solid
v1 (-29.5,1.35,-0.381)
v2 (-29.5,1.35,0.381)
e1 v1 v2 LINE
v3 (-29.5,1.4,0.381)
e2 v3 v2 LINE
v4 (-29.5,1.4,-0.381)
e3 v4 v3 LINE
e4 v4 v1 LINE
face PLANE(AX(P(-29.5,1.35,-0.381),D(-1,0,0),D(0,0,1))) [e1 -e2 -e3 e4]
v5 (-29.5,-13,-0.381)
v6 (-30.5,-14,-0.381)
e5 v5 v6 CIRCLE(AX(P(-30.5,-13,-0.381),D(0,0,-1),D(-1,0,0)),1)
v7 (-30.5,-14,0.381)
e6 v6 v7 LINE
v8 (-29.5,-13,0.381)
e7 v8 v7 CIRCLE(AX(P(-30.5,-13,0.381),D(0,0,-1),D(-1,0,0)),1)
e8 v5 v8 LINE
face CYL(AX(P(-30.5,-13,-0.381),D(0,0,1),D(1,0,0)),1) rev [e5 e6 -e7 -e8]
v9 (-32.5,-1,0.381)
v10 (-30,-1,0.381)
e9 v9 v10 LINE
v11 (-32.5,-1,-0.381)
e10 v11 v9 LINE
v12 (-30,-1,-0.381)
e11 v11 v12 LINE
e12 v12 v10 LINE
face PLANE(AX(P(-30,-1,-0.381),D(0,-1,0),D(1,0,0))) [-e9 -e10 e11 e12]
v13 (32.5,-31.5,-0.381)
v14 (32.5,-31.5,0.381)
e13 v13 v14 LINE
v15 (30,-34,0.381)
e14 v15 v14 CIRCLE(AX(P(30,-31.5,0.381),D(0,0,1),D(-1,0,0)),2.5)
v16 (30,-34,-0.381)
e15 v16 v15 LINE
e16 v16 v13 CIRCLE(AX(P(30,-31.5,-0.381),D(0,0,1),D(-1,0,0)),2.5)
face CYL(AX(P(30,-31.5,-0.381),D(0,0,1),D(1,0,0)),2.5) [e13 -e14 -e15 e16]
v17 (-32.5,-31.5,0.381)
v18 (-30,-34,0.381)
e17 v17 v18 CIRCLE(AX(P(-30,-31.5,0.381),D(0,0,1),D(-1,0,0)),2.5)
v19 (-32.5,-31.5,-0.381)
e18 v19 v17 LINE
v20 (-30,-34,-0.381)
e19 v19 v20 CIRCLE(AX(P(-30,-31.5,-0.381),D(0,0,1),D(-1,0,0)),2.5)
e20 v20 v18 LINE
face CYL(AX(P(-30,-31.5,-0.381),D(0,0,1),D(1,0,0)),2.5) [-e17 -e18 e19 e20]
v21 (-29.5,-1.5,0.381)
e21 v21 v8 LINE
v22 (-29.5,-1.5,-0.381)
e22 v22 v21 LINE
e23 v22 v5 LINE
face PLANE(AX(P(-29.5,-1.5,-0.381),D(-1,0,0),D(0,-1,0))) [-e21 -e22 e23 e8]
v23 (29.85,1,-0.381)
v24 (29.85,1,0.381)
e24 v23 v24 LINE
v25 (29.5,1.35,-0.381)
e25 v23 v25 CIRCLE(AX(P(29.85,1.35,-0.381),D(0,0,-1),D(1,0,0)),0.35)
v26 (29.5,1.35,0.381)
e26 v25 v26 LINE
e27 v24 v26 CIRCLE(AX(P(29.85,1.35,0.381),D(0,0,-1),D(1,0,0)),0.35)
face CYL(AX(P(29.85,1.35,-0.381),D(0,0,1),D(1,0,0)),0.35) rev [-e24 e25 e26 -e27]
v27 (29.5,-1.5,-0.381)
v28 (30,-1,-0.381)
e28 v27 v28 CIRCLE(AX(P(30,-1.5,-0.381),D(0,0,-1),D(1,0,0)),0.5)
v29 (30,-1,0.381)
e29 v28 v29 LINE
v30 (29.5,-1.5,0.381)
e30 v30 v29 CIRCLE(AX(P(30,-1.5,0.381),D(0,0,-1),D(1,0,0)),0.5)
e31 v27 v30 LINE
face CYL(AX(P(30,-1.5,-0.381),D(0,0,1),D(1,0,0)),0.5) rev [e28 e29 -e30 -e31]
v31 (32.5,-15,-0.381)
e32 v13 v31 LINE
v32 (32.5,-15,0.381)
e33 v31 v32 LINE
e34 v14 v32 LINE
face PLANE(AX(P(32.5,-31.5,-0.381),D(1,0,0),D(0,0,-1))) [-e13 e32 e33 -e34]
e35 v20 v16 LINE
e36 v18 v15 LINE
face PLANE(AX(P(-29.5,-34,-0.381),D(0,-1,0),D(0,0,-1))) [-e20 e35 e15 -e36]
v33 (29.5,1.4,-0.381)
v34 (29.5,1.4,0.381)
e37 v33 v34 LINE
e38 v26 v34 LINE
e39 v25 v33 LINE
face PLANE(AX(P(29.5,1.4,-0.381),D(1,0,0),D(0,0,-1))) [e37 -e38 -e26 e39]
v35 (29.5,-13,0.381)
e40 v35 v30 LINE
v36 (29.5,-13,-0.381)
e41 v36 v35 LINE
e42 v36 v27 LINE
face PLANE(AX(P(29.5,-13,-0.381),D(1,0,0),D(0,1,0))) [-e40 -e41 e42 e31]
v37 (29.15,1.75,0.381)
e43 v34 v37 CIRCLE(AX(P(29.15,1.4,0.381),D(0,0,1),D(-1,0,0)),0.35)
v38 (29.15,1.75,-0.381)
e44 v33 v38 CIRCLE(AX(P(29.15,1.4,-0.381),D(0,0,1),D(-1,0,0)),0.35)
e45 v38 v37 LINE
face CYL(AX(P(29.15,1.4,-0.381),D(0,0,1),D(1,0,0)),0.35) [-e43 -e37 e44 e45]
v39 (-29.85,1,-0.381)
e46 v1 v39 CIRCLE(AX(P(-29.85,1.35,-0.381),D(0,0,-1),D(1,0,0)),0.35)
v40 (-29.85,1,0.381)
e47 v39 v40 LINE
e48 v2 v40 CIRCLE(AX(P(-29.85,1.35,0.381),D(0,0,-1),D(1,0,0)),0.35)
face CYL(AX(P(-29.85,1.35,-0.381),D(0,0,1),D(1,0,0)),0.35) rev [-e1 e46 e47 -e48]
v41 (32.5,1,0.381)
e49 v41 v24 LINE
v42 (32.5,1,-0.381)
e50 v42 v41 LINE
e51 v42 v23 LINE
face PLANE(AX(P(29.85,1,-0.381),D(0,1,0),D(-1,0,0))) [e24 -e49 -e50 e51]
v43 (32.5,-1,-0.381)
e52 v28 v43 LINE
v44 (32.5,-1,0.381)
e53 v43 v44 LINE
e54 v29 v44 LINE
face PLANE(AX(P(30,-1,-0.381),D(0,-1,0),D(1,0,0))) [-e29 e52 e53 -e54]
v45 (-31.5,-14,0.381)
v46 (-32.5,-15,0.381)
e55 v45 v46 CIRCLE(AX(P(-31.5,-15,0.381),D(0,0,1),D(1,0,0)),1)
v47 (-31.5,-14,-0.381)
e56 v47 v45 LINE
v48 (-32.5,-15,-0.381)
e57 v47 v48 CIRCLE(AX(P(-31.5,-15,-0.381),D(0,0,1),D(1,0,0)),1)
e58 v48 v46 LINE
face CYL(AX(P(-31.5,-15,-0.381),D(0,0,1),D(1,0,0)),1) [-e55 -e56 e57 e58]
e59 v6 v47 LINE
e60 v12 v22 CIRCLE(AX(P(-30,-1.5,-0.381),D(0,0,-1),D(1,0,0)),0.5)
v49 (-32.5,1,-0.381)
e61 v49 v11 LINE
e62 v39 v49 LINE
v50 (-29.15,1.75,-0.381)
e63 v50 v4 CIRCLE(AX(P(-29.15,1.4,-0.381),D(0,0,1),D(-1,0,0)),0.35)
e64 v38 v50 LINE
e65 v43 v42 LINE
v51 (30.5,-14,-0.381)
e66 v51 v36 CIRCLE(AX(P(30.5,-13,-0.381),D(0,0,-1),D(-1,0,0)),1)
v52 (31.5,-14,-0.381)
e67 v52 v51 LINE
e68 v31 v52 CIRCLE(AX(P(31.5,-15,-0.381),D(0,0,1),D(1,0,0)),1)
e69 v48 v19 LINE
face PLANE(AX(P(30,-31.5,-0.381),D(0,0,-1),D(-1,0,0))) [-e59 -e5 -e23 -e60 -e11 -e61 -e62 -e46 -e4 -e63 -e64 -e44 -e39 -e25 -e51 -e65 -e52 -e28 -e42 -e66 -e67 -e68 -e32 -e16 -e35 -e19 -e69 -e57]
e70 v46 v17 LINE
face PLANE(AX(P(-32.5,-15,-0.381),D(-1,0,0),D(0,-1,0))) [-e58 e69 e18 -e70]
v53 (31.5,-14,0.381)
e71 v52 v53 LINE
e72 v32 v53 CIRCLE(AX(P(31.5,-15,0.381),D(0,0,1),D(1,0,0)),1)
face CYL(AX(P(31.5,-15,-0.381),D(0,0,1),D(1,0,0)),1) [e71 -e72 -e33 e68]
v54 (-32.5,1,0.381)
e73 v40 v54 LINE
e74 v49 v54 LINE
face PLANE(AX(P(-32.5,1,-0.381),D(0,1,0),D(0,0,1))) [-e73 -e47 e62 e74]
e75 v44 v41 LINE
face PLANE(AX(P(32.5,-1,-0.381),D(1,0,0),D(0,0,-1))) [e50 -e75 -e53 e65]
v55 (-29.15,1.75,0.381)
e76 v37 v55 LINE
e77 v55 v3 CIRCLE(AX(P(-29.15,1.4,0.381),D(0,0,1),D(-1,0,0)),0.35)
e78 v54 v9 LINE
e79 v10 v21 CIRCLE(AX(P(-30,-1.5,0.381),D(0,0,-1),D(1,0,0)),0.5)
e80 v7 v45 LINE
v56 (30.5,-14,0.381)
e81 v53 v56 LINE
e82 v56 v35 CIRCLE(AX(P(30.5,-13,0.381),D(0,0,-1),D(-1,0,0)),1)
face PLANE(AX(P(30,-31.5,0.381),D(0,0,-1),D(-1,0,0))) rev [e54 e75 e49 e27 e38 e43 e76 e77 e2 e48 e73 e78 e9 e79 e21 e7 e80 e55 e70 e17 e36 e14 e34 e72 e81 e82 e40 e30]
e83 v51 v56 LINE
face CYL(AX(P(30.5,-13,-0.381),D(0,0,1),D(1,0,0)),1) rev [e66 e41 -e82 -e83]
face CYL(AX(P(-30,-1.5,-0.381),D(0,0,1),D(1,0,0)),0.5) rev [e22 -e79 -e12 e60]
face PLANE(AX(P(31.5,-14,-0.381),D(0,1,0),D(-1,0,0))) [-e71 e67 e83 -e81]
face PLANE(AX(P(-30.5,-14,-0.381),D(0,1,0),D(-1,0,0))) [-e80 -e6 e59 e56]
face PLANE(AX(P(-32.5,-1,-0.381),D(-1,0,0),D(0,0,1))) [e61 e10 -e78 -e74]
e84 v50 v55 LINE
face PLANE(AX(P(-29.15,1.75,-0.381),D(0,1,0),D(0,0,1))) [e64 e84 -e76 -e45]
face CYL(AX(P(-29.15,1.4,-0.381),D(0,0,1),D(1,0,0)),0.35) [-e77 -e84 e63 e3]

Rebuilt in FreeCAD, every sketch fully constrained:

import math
import FreeCAD as App
import Part
import Sketcher

V = App.Vector

doc = App.newDocument("Part")
body = doc.addObject("PartDesign::Body", "Body")

sketch1 = doc.addObject("Sketcher::SketchObject", "Sketch")
body.addObject(sketch1)
sketch1.AttachmentSupport = (doc.XY_Plane, [""])
sketch1.MapMode = "FlatFace"
sketch1.addGeometry([
    Part.ArcOfCircle(Part.Circle(V(30, -31.5, 0), V(0, 0, 1), 2.5), math.radians(-90), math.radians(0)),
    Part.LineSegment(V(32.5, -31.5, 0), V(32.5, -15, 0)),
    Part.ArcOfCircle(Part.Circle(V(31.5, -15, 0), V(0, 0, 1), 1), math.radians(0), math.radians(90)),
    Part.LineSegment(V(31.5, -14, 0), V(30.5, -14, 0)),
    Part.ArcOfCircle(Part.Circle(V(30.5, -13, 0), V(0, 0, 1), 1), math.radians(-180), math.radians(-90)),
    Part.LineSegment(V(29.5, -13, 0), V(29.5, -1.5, 0)),
    Part.ArcOfCircle(Part.Circle(V(30, -1.5, 0), V(0, 0, 1), 0.5), math.radians(90), math.radians(180)),
    Part.LineSegment(V(30, -1, 0), V(32.5, -1, 0)),
    Part.LineSegment(V(32.5, -1, 0), V(32.5, 1, 0)),
    Part.LineSegment(V(32.5, 1, 0), V(29.85, 1, 0)),
    Part.ArcOfCircle(Part.Circle(V(29.85, 1.35, 0), V(0, 0, 1), 0.35), math.radians(-180), math.radians(-90)),
    Part.LineSegment(V(29.5, 1.35, 0), V(29.5, 1.4, 0)),
    Part.ArcOfCircle(Part.Circle(V(29.15, 1.4, 0), V(0, 0, 1), 0.35), math.radians(0), math.radians(90)),
    Part.LineSegment(V(29.15, 1.75, 0), V(-29.15, 1.75, 0)),
    Part.ArcOfCircle(Part.Circle(V(-29.15, 1.4, 0), V(0, 0, 1), 0.35), math.radians(90), math.radians(180)),
    Part.LineSegment(V(-29.5, 1.4, 0), V(-29.5, 1.35, 0)),
    Part.ArcOfCircle(Part.Circle(V(-29.85, 1.35, 0), V(0, 0, 1), 0.35), math.radians(-90), math.radians(0)),
    Part.LineSegment(V(-29.85, 1, 0), V(-32.5, 1, 0)),
    Part.LineSegment(V(-32.5, 1, 0), V(-32.5, -1, 0)),
    Part.LineSegment(V(-32.5, -1, 0), V(-30, -1, 0)),
    Part.ArcOfCircle(Part.Circle(V(-30, -1.5, 0), V(0, 0, 1), 0.5), math.radians(0), math.radians(90)),
    Part.LineSegment(V(-29.5, -1.5, 0), V(-29.5, -13, 0)),
    Part.ArcOfCircle(Part.Circle(V(-30.5, -13, 0), V(0, 0, 1), 1), math.radians(-90), math.radians(0)),
    Part.LineSegment(V(-30.5, -14, 0), V(-31.5, -14, 0)),
    Part.ArcOfCircle(Part.Circle(V(-31.5, -15, 0), V(0, 0, 1), 1), math.radians(90), math.radians(180)),
    Part.LineSegment(V(-32.5, -15, 0), V(-32.5, -31.5, 0)),
    Part.ArcOfCircle(Part.Circle(V(-30, -31.5, 0), V(0, 0, 1), 2.5), math.radians(180), math.radians(270)),
    Part.LineSegment(V(-30, -34, 0), V(30, -34, 0)),
], False)
sketch1.addConstraint([
    Sketcher.Constraint("Tangent", 0, 2, 1, 1),
    Sketcher.Constraint("Tangent", 1, 2, 2, 1),
    Sketcher.Constraint("Tangent", 2, 2, 3, 1),
    Sketcher.Constraint("Tangent", 3, 2, 4, 2),
    Sketcher.Constraint("Tangent", 4, 1, 5, 1),
    Sketcher.Constraint("Tangent", 5, 2, 6, 2),
    Sketcher.Constraint("Tangent", 6, 1, 7, 1),
    Sketcher.Constraint("Coincident", 7, 2, 8, 1),
    Sketcher.Constraint("Coincident", 8, 2, 9, 1),
    Sketcher.Constraint("Tangent", 9, 2, 10, 2),
    Sketcher.Constraint("Tangent", 10, 1, 11, 1),
    Sketcher.Constraint("Tangent", 11, 2, 12, 1),
    Sketcher.Constraint("Tangent", 12, 2, 13, 1),
    Sketcher.Constraint("Tangent", 13, 2, 14, 1),
    Sketcher.Constraint("Tangent", 14, 2, 15, 1),
    Sketcher.Constraint("Tangent", 15, 2, 16, 2),
    Sketcher.Constraint("Tangent", 16, 1, 17, 1),
    Sketcher.Constraint("Coincident", 17, 2, 18, 1),
    Sketcher.Constraint("Coincident", 18, 2, 19, 1),
    Sketcher.Constraint("Tangent", 19, 2, 20, 2),
    Sketcher.Constraint("Tangent", 20, 1, 21, 1),
    Sketcher.Constraint("Tangent", 21, 2, 22, 2),
    Sketcher.Constraint("Tangent", 22, 1, 23, 1),
    Sketcher.Constraint("Tangent", 23, 2, 24, 1),
    Sketcher.Constraint("Tangent", 24, 2, 25, 1),
    Sketcher.Constraint("Tangent", 25, 2, 26, 1),
    Sketcher.Constraint("Tangent", 26, 2, 27, 1),
    Sketcher.Constraint("Tangent", 27, 2, 0, 1),
    Sketcher.Constraint("Vertical", 1),
    Sketcher.Constraint("Horizontal", 3),
    Sketcher.Constraint("Vertical", 5),
    Sketcher.Constraint("Horizontal", 7),
    Sketcher.Constraint("Vertical", 8),
    Sketcher.Constraint("Horizontal", 9),
    Sketcher.Constraint("Vertical", 11),
    Sketcher.Constraint("Horizontal", 13),
    Sketcher.Constraint("Vertical", 15),
    Sketcher.Constraint("Horizontal", 17),
    Sketcher.Constraint("Vertical", 18),
    Sketcher.Constraint("Horizontal", 19),
    Sketcher.Constraint("Vertical", 21),
    Sketcher.Constraint("Horizontal", 23),
    Sketcher.Constraint("Vertical", 25),
    Sketcher.Constraint("Horizontal", 27),
    Sketcher.Constraint("Equal", 2, 4),
    Sketcher.Constraint("Equal", 10, 12),
    Sketcher.Constraint("Equal", 12, 14),
    Sketcher.Constraint("Equal", 14, 16),
    Sketcher.Constraint("Equal", 6, 20),
    Sketcher.Constraint("Equal", 4, 22),
    Sketcher.Constraint("Equal", 22, 24),
    Sketcher.Constraint("Equal", 0, 26),
    Sketcher.Constraint("Symmetric", 7, 2, 17, 2, -1, 1),
    Sketcher.Constraint("Symmetric", 10, 3, 16, 3, -2),
    Sketcher.Constraint("Symmetric", 6, 3, 20, 3, -2),
    Sketcher.Constraint("Symmetric", 2, 3, 24, 3, -2),
    Sketcher.Constraint("Vertical", 0, 3, 6, 3),
    Sketcher.Constraint("Vertical", 1, 2, 7, 2),
    Sketcher.Constraint("Vertical", 5, 2, 10, 1),
    Sketcher.Constraint("Radius", 2, 1.0),
    Sketcher.Constraint("Radius", 0, 2.5),
    Sketcher.Constraint("Radius", 6, 0.5),
    Sketcher.Constraint("DistanceX", 27, 1, 27, 2, 60.0),
    Sketcher.Constraint("DistanceY", 8, 1, 8, 2, 2.0),
    Sketcher.Constraint("Radius", 10, 0.35),
    Sketcher.Constraint("DistanceY", 1, 1, 1, 2, 16.5),
    Sketcher.Constraint("DistanceY", 5, 1, 5, 2, 11.5),
    Sketcher.Constraint("DistanceY", 11, 1, 11, 2, 0.05),
])
pad1 = doc.addObject("PartDesign::Pad", "Pad")
body.addObject(pad1)
pad1.Profile = sketch1
pad1.Type = "TwoLengths"
pad1.Length = 0.381
pad1.Length2 = 0.381

doc.recompute()
